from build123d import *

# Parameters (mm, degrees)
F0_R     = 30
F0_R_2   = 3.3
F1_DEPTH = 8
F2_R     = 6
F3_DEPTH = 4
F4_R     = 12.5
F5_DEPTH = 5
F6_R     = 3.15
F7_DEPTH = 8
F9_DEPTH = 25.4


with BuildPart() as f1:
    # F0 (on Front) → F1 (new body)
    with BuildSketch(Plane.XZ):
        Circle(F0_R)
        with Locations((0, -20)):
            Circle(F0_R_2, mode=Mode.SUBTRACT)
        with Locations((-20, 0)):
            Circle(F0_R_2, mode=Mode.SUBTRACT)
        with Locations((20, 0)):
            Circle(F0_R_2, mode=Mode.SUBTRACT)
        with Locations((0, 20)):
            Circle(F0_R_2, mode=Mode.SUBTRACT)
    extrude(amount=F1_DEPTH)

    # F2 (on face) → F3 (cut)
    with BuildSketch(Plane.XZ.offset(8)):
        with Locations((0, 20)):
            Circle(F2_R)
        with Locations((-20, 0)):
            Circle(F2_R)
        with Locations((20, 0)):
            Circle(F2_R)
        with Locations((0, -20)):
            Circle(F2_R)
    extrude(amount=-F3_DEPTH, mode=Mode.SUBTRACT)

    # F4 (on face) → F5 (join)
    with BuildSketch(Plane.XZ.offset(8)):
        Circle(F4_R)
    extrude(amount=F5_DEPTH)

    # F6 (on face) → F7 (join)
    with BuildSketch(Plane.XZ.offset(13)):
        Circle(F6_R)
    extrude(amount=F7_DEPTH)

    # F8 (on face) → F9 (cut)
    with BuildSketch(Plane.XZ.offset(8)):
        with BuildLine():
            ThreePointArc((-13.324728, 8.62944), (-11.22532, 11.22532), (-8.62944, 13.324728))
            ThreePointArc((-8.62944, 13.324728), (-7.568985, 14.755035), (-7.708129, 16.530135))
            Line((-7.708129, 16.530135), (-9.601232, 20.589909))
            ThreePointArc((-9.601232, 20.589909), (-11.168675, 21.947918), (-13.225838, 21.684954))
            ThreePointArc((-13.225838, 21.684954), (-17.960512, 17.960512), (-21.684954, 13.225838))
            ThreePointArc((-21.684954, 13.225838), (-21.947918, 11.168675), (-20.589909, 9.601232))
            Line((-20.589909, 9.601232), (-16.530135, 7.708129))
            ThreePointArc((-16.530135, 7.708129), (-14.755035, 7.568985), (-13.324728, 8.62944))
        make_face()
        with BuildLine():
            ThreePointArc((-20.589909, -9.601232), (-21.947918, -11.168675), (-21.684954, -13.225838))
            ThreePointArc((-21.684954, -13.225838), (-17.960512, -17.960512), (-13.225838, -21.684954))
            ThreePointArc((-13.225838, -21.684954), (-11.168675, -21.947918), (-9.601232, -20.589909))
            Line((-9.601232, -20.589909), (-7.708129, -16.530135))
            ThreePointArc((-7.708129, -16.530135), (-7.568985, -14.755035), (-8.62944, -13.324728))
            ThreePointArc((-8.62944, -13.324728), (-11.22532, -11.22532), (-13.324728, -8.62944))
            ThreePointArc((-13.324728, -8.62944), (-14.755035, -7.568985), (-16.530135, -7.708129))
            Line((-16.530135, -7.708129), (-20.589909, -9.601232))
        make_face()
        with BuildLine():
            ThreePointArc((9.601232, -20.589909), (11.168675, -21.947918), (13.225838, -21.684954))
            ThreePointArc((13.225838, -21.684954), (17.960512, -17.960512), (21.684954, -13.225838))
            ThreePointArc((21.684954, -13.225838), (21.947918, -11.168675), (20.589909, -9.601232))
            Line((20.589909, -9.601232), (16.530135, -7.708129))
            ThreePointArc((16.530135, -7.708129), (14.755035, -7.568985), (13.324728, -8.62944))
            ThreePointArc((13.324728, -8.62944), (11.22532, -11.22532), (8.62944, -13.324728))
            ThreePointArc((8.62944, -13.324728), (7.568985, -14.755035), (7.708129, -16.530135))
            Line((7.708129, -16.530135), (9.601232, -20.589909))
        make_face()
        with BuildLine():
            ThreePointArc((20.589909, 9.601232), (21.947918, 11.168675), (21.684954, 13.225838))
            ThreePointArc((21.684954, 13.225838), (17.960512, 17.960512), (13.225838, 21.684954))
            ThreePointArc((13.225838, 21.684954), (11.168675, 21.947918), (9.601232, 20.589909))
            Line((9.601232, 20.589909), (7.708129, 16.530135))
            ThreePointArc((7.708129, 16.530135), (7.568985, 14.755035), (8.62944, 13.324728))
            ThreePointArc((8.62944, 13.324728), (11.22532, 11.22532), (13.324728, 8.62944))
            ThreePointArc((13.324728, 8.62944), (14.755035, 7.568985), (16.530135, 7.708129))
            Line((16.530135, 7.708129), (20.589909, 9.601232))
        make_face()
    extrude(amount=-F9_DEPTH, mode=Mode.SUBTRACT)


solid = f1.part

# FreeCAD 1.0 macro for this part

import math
import FreeCAD as App
import Part
import Sketcher
Q = App.Units.Quantity

doc = App.newDocument("Part")
body = doc.addObject("PartDesign::Body", "Body")

sketch1 = body.newObject("Sketcher::SketchObject", "Sketch")
sketch1.AttachmentSupport = (doc.getObject("XZ_Plane"), [""])
sketch1.MapMode = "FlatFace"
sketch1.addGeometry(Part.Circle(App.Vector(0, 0, 0), App.Vector(0, 0, 1), 30), False)
sketch1.addGeometry(Part.Circle(App.Vector(0, -20, 0), App.Vector(0, 0, 1), 3.3), False)
sketch1.addGeometry(Part.Circle(App.Vector(-20, 0, 0), App.Vector(0, 0, 1), 3.3), False)
sketch1.addGeometry(Part.Circle(App.Vector(20, 0, 0), App.Vector(0, 0, 1), 3.3), False)
sketch1.addGeometry(Part.Circle(App.Vector(0, 20, 0), App.Vector(0, 0, 1), 3.3), False)
sketch1.addConstraint(Sketcher.Constraint("Coincident", 0, 3, -1, 1))
sketch1.addConstraint(Sketcher.Constraint("Equal", 1, 2))
sketch1.addConstraint(Sketcher.Constraint("Equal", 2, 3))
sketch1.addConstraint(Sketcher.Constraint("Equal", 3, 4))
sketch1.addConstraint(Sketcher.Constraint("Symmetric", 2, 3, 3, 3, -1, 1))
sketch1.addConstraint(Sketcher.Constraint("Symmetric", 1, 3, 4, 3, -1, 1))
sketch1.addConstraint(Sketcher.Constraint("PointOnObject", 1, 3, -2))
sketch1.addConstraint(Sketcher.Constraint("PointOnObject", 2, 3, -1))
sketch1.addConstraint(Sketcher.Constraint("Diameter", 0, 60.0))
sketch1.addConstraint(Sketcher.Constraint("Diameter", 1, 6.6))
sketch1.addConstraint(Sketcher.Constraint("DistanceY", 1, 3, -1, 1, 20.0))
sketch1.addConstraint(Sketcher.Constraint("DistanceX", 2, 3, -1, 1, 20.0))
pad1 = body.newObject("PartDesign::Pad", "Pad")
pad1.Profile = sketch1
pad1.Length = 8

sketch2 = body.newObject("Sketcher::SketchObject", "Sketch001")
sketch2.AttachmentSupport = (doc.getObject("XZ_Plane"), [""])
sketch2.MapMode = "FlatFace"
sketch2.AttachmentOffset = App.Placement(App.Vector(0, 0, 8), App.Rotation())
sketch2.addGeometry(Part.Circle(App.Vector(0, 20, 0), App.Vector(0, 0, 1), 6), False)
sketch2.addGeometry(Part.Circle(App.Vector(-20, 0, 0), App.Vector(0, 0, 1), 6), False)
sketch2.addGeometry(Part.Circle(App.Vector(20, 0, 0), App.Vector(0, 0, 1), 6), False)
sketch2.addGeometry(Part.Circle(App.Vector(0, -20, 0), App.Vector(0, 0, 1), 6), False)
sketch2.addConstraint(Sketcher.Constraint("Equal", 0, 1))
sketch2.addConstraint(Sketcher.Constraint("Equal", 1, 2))
sketch2.addConstraint(Sketcher.Constraint("Equal", 2, 3))
sketch2.addConstraint(Sketcher.Constraint("Symmetric", 1, 3, 2, 3, -1, 1))
sketch2.addConstraint(Sketcher.Constraint("Symmetric", 0, 3, 3, 3, -1, 1))
sketch2.addConstraint(Sketcher.Constraint("PointOnObject", 0, 3, -2))
sketch2.addConstraint(Sketcher.Constraint("PointOnObject", 1, 3, -1))
sketch2.addConstraint(Sketcher.Constraint("Diameter", 0, 12.0))
sketch2.addConstraint(Sketcher.Constraint("DistanceY", -1, 1, 0, 3, 20.0))
sketch2.addConstraint(Sketcher.Constraint("DistanceX", 1, 3, -1, 1, 20.0))
pocket1 = body.newObject("PartDesign::Pocket", "Pocket")
pocket1.Profile = sketch2
pocket1.Length = 4

sketch3 = body.newObject("Sketcher::SketchObject", "Sketch002")
sketch3.AttachmentSupport = (doc.getObject("XZ_Plane"), [""])
sketch3.MapMode = "FlatFace"
sketch3.AttachmentOffset = App.Placement(App.Vector(0, 0, 8), App.Rotation())
sketch3.addGeometry(Part.Circle(App.Vector(0, 0, 0), App.Vector(0, 0, 1), 12.5), False)
sketch3.addConstraint(Sketcher.Constraint("Coincident", 0, 3, -1, 1))
sketch3.addConstraint(Sketcher.Constraint("Diameter", 0, 25.0))
pad2 = body.newObject("PartDesign::Pad", "Pad001")
pad2.Profile = sketch3
pad2.Length = 5

sketch4 = body.newObject("Sketcher::SketchObject", "Sketch003")
sketch4.AttachmentSupport = (doc.getObject("XZ_Plane"), [""])
sketch4.MapMode = "FlatFace"
sketch4.AttachmentOffset = App.Placement(App.Vector(0, 0, 13), App.Rotation())
sketch4.addGeometry(Part.Circle(App.Vector(0, 0, 0), App.Vector(0, 0, 1), 3.15), False)
sketch4.addConstraint(Sketcher.Constraint("Coincident", 0, 3, -1, 1))
sketch4.addConstraint(Sketcher.Constraint("Diameter", 0, 6.3))
pad3 = body.newObject("PartDesign::Pad", "Pad002")
pad3.Profile = sketch4
pad3.Length = 8

sketch5 = body.newObject("Sketcher::SketchObject", "Sketch004")
sketch5.AttachmentSupport = (doc.getObject("XZ_Plane"), [""])
sketch5.MapMode = "FlatFace"
sketch5.AttachmentOffset = App.Placement(App.Vector(0, 0, 8), App.Rotation())
sketch5.addGeometry(Part.ArcOfCircle(Part.Circle(App.Vector(-0.000007, 0.000007, 0), App.Vector(0, 0, 1), 15.87499), math.radians(122.928135), math.radians(147.071865)), False)
sketch5.addGeometry(Part.ArcOfCircle(Part.Circle(App.Vector(-10.010149, 15.456684, 0), App.Vector(0, 0, 1), 2.539999), math.radians(-57.071872), math.radians(25.000026)), False)
sketch5.addGeometry(Part.LineSegment(App.Vector(-7.708129, 16.530135, 0), App.Vector(-9.601232, 20.589909, 0)), False)
sketch5.addGeometry(Part.ArcOfCircle(Part.Circle(App.Vector(-11.903254, 19.516459, 0), App.Vector(0, 0, 1), 2.54), math.radians(24.999997), math.radians(121.379377)), False)
sketch5.addGeometry(Part.ArcOfCircle(Part.Circle(App.Vector(0.000019, -0.000019, 0), App.Vector(0, 0, 1), 25.400026), math.radians(121.379385), math.radians(148.620615)), False)
sketch5.addGeometry(Part.ArcOfCircle(Part.Circle(App.Vector(-19.516459, 11.903254, 0), App.Vector(0, 0, 1), 2.54), math.radians(148.620623), math.radians(245.000003)), False)
sketch5.addGeometry(Part.LineSegment(App.Vector(-20.589909, 9.601232, 0), App.Vector(-16.530135, 7.708129, 0)), False)
sketch5.addGeometry(Part.ArcOfCircle(Part.Circle(App.Vector(-15.456684, 10.010149, 0), App.Vector(0, 0, 1), 2.539999), math.radians(-115.000026), math.radians(-32.928128)), False)
sketch5.addGeometry(Part.ArcOfCircle(Part.Circle(App.Vector(-19.516459, -11.903254, 0), App.Vector(0, 0, 1), 2.54), math.radians(114.999997), math.radians(211.379377)), False)
sketch5.addGeometry(Part.ArcOfCircle(Part.Circle(App.Vector(0.000019, 0.000019, 0), App.Vector(0, 0, 1), 25.400026), math.radians(-148.620615), math.radians(-121.379385)), False)
sketch5.addGeometry(Part.ArcOfCircle(Part.Circle(App.Vector(-11.903254, -19.516459, 0), App.Vector(0, 0, 1), 2.54), math.radians(-121.379377), math.radians(-24.999997)), False)
sketch5.addGeometry(Part.LineSegment(App.Vector(-9.601232, -20.589909, 0), App.Vector(-7.708129, -16.530135, 0)), False)
sketch5.addGeometry(Part.ArcOfCircle(Part.Circle(App.Vector(-10.010149, -15.456684, 0), App.Vector(0, 0, 1), 2.539999), math.radians(-25.000026), math.radians(57.071872)), False)
sketch5.addGeometry(Part.ArcOfCircle(Part.Circle(App.Vector(-0.000007, -0.000007, 0), App.Vector(0, 0, 1), 15.87499), math.radians(-147.071865), math.radians(-122.928135)), False)
sketch5.addGeometry(Part.ArcOfCircle(Part.Circle(App.Vector(-15.456684, -10.010149, 0), App.Vector(0, 0, 1), 2.539999), math.radians(32.928128), math.radians(115.000026)), False)
sketch5.addGeometry(Part.LineSegment(App.Vector(-16.530135, -7.708129, 0), App.Vector(-20.589909, -9.601232, 0)), False)
sketch5.addGeometry(Part.ArcOfCircle(Part.Circle(App.Vector(11.903254, -19.516459, 0), App.Vector(0, 0, 1), 2.54), math.radians(-155.000003), math.radians(-58.620623)), False)
sketch5.addGeometry(Part.ArcOfCircle(Part.Circle(App.Vector(-0.000019, 0.000019, 0), App.Vector(0, 0, 1), 25.400026), math.radians(-58.620615), math.radians(-31.379385)), False)
sketch5.addGeometry(Part.ArcOfCircle(Part.Circle(App.Vector(19.516459, -11.903254, 0), App.Vector(0, 0, 1), 2.54), math.radians(-31.379377), math.radians(65.000003)), False)
sketch5.addGeometry(Part.LineSegment(App.Vector(20.589909, -9.601232, 0), App.Vector(16.530135, -7.708129, 0)), False)
sketch5.addGeometry(Part.ArcOfCircle(Part.Circle(App.Vector(15.456684, -10.010149, 0), App.Vector(0, 0, 1), 2.539999), math.radians(64.999974), math.radians(147.071872)), False)
sketch5.addGeometry(Part.ArcOfCircle(Part.Circle(App.Vector(0.000007, -0.000007, 0), App.Vector(0, 0, 1), 15.87499), math.radians(-57.071865), math.radians(-32.928135)), False)
sketch5.addGeometry(Part.ArcOfCircle(Part.Circle(App.Vector(10.010149, -15.456684, 0), App.Vector(0, 0, 1), 2.539999), math.radians(122.928128), math.radians(205.000026)), False)
sketch5.addGeometry(Part.LineSegment(App.Vector(7.708129, -16.530135, 0), App.Vector(9.601232, -20.589909, 0)), False)
sketch5.addGeometry(Part.ArcOfCircle(Part.Circle(App.Vector(19.516459, 11.903254, 0), App.Vector(0, 0, 1), 2.54), math.radians(-65.000003), math.radians(31.379377)), False)
sketch5.addGeometry(Part.ArcOfCircle(Part.Circle(App.Vector(-0.000019, -0.000019, 0), App.Vector(0, 0, 1), 25.400026), math.radians(31.379385), math.radians(58.620615)), False)
sketch5.addGeometry(Part.ArcOfCircle(Part.Circle(App.Vector(11.903254, 19.516459, 0), App.Vector(0, 0, 1), 2.54), math.radians(58.620623), math.radians(155.000003)), False)
sketch5.addGeometry(Part.LineSegment(App.Vector(9.601232, 20.589909, 0), App.Vector(7.708129, 16.530135, 0)), False)
sketch5.addGeometry(Part.ArcOfCircle(Part.Circle(App.Vector(10.010149, 15.456684, 0), App.Vector(0, 0, 1), 2.539999), math.radians(154.999974), math.radians(237.071872)), False)
sketch5.addGeometry(Part.ArcOfCircle(Part.Circle(App.Vector(0.000007, 0.000007, 0), App.Vector(0, 0, 1), 15.87499), math.radians(32.928135), math.radians(57.071865)), False)
sketch5.addGeometry(Part.ArcOfCircle(Part.Circle(App.Vector(15.456684, 10.010149, 0), App.Vector(0, 0, 1), 2.539999), math.radians(-147.071872), math.radians(-64.999974)), False)
sketch5.addGeometry(Part.LineSegment(App.Vector(16.530135, 7.708129, 0), App.Vector(20.589909, 9.601232, 0)), False)
sketch5.addConstraint(Sketcher.Constraint("Tangent", 0, 1, 1, 1))
sketch5.addConstraint(Sketcher.Constraint("Tangent", 1, 2, 2, 1))
sketch5.addConstraint(Sketcher.Constraint("Tangent", 2, 2, 3, 1))
sketch5.addConstraint(Sketcher.Constraint("Tangent", 3, 2, 4, 1))
sketch5.addConstraint(Sketcher.Constraint("Tangent", 4, 2, 5, 1))
sketch5.addConstraint(Sketcher.Constraint("Tangent", 5, 2, 6, 1))
sketch5.addConstraint(Sketcher.Constraint("Tangent", 6, 2, 7, 1))
sketch5.addConstraint(Sketcher.Constraint("Tangent", 7, 2, 0, 2))
sketch5.addConstraint(Sketcher.Constraint("Tangent", 8, 2, 9, 1))
sketch5.addConstraint(Sketcher.Constraint("Tangent", 9, 2, 10, 1))
sketch5.addConstraint(Sketcher.Constraint("Tangent", 10, 2, 11, 1))
sketch5.addConstraint(Sketcher.Constraint("Tangent", 11, 2, 12, 1))
sketch5.addConstraint(Sketcher.Constraint("Tangent", 12, 2, 13, 2))
sketch5.addConstraint(Sketcher.Constraint("Tangent", 13, 1, 14, 1))
sketch5.addConstraint(Sketcher.Constraint("Tangent", 14, 2, 15, 1))
sketch5.addConstraint(Sketcher.Constraint("Tangent", 15, 2, 8, 1))
sketch5.addConstraint(Sketcher.Constraint("Tangent", 16, 2, 17, 1))
sketch5.addConstraint(Sketcher.Constraint("Tangent", 17, 2, 18, 1))
sketch5.addConstraint(Sketcher.Constraint("Tangent", 18, 2, 19, 1))
sketch5.addConstraint(Sketcher.Constraint("Tangent", 19, 2, 20, 1))
sketch5.addConstraint(Sketcher.Constraint("Tangent", 20, 2, 21, 2))
sketch5.addConstraint(Sketcher.Constraint("Tangent", 21, 1, 22, 1))
sketch5.addConstraint(Sketcher.Constraint("Tangent", 22, 2, 23, 1))
sketch5.addConstraint(Sketcher.Constraint("Tangent", 23, 2, 16, 1))
sketch5.addConstraint(Sketcher.Constraint("Tangent", 24, 2, 25, 1))
sketch5.addConstraint(Sketcher.Constraint("Tangent", 25, 2, 26, 1))
sketch5.addConstraint(Sketcher.Constraint("Tangent", 26, 2, 27, 1))
sketch5.addConstraint(Sketcher.Constraint("Tangent", 27, 2, 28, 1))
sketch5.addConstraint(Sketcher.Constraint("Tangent", 28, 2, 29, 2))
sketch5.addConstraint(Sketcher.Constraint("Tangent", 29, 1, 30, 1))
sketch5.addConstraint(Sketcher.Constraint("Tangent", 30, 2, 31, 1))
sketch5.addConstraint(Sketcher.Constraint("Tangent", 31, 2, 24, 1))
sketch5.addConstraint(Sketcher.Constraint("Equal", 1, 3))
sketch5.addConstraint(Sketcher.Constraint("Equal", 3, 5))
sketch5.addConstraint(Sketcher.Constraint("Equal", 5, 7))
sketch5.addConstraint(Sketcher.Constraint("Equal", 7, 8))
sketch5.addConstraint(Sketcher.Constraint("Equal", 4, 9))
sketch5.addConstraint(Sketcher.Constraint("Equal", 8, 10))
sketch5.addConstraint(Sketcher.Constraint("Equal", 10, 12))
sketch5.addConstraint(Sketcher.Constraint("Equal", 0, 13))
sketch5.addConstraint(Sketcher.Constraint("Equal", 12, 14))
sketch5.addConstraint(Sketcher.Constraint("Equal", 14, 16))
sketch5.addConstraint(Sketcher.Constraint("Equal", 9, 17))
sketch5.addConstraint(Sketcher.Constraint("Equal", 16, 18))
sketch5.addConstraint(Sketcher.Constraint("Equal", 18, 20))
sketch5.addConstraint(Sketcher.Constraint("Equal", 13, 21))
sketch5.addConstraint(Sketcher.Constraint("Equal", 20, 22))
sketch5.addConstraint(Sketcher.Constraint("Equal", 22, 24))
sketch5.addConstraint(Sketcher.Constraint("Equal", 17, 25))
sketch5.addConstraint(Sketcher.Constraint("Equal", 24, 26))
sketch5.addConstraint(Sketcher.Constraint("Equal", 26, 28))
sketch5.addConstraint(Sketcher.Constraint("Equal", 21, 29))
sketch5.addConstraint(Sketcher.Constraint("Equal", 28, 30))
sketch5.addConstraint(Sketcher.Constraint("Symmetric", 3, 3, 16, 3, -1, 1))
sketch5.addConstraint(Sketcher.Constraint("Symmetric", 5, 3, 18, 3, -1, 1))
sketch5.addConstraint(Sketcher.Constraint("Symmetric", 7, 3, 20, 3, -1, 1))
sketch5.addConstraint(Sketcher.Constraint("Symmetric", 1, 3, 22, 3, -1, 1))
sketch5.addConstraint(Sketcher.Constraint("Symmetric", 8, 3, 24, 3, -1, 1))
sketch5.addConstraint(Sketcher.Constraint("Symmetric", 10, 3, 26, 3, -1, 1))
sketch5.addConstraint(Sketcher.Constraint("Symmetric", 12, 3, 28, 3, -1, 1))
sketch5.addConstraint(Sketcher.Constraint("Symmetric", 14, 3, 30, 3, -1, 1))
sketch5.addConstraint(Sketcher.Constraint("Symmetric", 10, 3, 16, 3, -2))
sketch5.addConstraint(Sketcher.Constraint("Symmetric", 8, 3, 18, 3, -2))
sketch5.addConstraint(Sketcher.Constraint("Symmetric", 14, 3, 20, 3, -2))
sketch5.addConstraint(Sketcher.Constraint("Symmetric", 12, 3, 22, 3, -2))
sketch5.addConstraint(Sketcher.Constraint("Perpendicular", 6, 11))
sketch5.addConstraint(Sketcher.Constraint("Equal", 2, 6))
sketch5.addConstraint(Sketcher.Constraint("Angle", 2, Q("114.999992 deg")))
sketch5.addConstraint(Sketcher.Constraint("Radius", 1, 2.539999))
sketch5.addConstraint(Sketcher.Constraint("Radius", 0, 15.87499))
sketch5.addConstraint(Sketcher.Constraint("Radius", 4, 25.400026))
sketch5.addConstraint(Sketcher.Constraint("DistanceX", 4, 2, 3, 3, 9.7817))
sketch5.addConstraint(Sketcher.Constraint("DistanceY", 6, 2, 0, 1, 5.616599))
sketch5.addConstraint(Sketcher.Constraint("DistanceY", 9, 2, 8, 3, 9.7817))
sketch5.addConstraint(Sketcher.Constraint("DistanceX", 1, 3, -1, 1, 10.010149))
sketch5.addConstraint(Sketcher.Constraint("DistanceY", -1, 1, 3, 3, 19.516459))
pocket2 = body.newObject("PartDesign::Pocket", "Pocket001")
pocket2.Profile = sketch5
pocket2.Length = 25.4

doc.recompute()
